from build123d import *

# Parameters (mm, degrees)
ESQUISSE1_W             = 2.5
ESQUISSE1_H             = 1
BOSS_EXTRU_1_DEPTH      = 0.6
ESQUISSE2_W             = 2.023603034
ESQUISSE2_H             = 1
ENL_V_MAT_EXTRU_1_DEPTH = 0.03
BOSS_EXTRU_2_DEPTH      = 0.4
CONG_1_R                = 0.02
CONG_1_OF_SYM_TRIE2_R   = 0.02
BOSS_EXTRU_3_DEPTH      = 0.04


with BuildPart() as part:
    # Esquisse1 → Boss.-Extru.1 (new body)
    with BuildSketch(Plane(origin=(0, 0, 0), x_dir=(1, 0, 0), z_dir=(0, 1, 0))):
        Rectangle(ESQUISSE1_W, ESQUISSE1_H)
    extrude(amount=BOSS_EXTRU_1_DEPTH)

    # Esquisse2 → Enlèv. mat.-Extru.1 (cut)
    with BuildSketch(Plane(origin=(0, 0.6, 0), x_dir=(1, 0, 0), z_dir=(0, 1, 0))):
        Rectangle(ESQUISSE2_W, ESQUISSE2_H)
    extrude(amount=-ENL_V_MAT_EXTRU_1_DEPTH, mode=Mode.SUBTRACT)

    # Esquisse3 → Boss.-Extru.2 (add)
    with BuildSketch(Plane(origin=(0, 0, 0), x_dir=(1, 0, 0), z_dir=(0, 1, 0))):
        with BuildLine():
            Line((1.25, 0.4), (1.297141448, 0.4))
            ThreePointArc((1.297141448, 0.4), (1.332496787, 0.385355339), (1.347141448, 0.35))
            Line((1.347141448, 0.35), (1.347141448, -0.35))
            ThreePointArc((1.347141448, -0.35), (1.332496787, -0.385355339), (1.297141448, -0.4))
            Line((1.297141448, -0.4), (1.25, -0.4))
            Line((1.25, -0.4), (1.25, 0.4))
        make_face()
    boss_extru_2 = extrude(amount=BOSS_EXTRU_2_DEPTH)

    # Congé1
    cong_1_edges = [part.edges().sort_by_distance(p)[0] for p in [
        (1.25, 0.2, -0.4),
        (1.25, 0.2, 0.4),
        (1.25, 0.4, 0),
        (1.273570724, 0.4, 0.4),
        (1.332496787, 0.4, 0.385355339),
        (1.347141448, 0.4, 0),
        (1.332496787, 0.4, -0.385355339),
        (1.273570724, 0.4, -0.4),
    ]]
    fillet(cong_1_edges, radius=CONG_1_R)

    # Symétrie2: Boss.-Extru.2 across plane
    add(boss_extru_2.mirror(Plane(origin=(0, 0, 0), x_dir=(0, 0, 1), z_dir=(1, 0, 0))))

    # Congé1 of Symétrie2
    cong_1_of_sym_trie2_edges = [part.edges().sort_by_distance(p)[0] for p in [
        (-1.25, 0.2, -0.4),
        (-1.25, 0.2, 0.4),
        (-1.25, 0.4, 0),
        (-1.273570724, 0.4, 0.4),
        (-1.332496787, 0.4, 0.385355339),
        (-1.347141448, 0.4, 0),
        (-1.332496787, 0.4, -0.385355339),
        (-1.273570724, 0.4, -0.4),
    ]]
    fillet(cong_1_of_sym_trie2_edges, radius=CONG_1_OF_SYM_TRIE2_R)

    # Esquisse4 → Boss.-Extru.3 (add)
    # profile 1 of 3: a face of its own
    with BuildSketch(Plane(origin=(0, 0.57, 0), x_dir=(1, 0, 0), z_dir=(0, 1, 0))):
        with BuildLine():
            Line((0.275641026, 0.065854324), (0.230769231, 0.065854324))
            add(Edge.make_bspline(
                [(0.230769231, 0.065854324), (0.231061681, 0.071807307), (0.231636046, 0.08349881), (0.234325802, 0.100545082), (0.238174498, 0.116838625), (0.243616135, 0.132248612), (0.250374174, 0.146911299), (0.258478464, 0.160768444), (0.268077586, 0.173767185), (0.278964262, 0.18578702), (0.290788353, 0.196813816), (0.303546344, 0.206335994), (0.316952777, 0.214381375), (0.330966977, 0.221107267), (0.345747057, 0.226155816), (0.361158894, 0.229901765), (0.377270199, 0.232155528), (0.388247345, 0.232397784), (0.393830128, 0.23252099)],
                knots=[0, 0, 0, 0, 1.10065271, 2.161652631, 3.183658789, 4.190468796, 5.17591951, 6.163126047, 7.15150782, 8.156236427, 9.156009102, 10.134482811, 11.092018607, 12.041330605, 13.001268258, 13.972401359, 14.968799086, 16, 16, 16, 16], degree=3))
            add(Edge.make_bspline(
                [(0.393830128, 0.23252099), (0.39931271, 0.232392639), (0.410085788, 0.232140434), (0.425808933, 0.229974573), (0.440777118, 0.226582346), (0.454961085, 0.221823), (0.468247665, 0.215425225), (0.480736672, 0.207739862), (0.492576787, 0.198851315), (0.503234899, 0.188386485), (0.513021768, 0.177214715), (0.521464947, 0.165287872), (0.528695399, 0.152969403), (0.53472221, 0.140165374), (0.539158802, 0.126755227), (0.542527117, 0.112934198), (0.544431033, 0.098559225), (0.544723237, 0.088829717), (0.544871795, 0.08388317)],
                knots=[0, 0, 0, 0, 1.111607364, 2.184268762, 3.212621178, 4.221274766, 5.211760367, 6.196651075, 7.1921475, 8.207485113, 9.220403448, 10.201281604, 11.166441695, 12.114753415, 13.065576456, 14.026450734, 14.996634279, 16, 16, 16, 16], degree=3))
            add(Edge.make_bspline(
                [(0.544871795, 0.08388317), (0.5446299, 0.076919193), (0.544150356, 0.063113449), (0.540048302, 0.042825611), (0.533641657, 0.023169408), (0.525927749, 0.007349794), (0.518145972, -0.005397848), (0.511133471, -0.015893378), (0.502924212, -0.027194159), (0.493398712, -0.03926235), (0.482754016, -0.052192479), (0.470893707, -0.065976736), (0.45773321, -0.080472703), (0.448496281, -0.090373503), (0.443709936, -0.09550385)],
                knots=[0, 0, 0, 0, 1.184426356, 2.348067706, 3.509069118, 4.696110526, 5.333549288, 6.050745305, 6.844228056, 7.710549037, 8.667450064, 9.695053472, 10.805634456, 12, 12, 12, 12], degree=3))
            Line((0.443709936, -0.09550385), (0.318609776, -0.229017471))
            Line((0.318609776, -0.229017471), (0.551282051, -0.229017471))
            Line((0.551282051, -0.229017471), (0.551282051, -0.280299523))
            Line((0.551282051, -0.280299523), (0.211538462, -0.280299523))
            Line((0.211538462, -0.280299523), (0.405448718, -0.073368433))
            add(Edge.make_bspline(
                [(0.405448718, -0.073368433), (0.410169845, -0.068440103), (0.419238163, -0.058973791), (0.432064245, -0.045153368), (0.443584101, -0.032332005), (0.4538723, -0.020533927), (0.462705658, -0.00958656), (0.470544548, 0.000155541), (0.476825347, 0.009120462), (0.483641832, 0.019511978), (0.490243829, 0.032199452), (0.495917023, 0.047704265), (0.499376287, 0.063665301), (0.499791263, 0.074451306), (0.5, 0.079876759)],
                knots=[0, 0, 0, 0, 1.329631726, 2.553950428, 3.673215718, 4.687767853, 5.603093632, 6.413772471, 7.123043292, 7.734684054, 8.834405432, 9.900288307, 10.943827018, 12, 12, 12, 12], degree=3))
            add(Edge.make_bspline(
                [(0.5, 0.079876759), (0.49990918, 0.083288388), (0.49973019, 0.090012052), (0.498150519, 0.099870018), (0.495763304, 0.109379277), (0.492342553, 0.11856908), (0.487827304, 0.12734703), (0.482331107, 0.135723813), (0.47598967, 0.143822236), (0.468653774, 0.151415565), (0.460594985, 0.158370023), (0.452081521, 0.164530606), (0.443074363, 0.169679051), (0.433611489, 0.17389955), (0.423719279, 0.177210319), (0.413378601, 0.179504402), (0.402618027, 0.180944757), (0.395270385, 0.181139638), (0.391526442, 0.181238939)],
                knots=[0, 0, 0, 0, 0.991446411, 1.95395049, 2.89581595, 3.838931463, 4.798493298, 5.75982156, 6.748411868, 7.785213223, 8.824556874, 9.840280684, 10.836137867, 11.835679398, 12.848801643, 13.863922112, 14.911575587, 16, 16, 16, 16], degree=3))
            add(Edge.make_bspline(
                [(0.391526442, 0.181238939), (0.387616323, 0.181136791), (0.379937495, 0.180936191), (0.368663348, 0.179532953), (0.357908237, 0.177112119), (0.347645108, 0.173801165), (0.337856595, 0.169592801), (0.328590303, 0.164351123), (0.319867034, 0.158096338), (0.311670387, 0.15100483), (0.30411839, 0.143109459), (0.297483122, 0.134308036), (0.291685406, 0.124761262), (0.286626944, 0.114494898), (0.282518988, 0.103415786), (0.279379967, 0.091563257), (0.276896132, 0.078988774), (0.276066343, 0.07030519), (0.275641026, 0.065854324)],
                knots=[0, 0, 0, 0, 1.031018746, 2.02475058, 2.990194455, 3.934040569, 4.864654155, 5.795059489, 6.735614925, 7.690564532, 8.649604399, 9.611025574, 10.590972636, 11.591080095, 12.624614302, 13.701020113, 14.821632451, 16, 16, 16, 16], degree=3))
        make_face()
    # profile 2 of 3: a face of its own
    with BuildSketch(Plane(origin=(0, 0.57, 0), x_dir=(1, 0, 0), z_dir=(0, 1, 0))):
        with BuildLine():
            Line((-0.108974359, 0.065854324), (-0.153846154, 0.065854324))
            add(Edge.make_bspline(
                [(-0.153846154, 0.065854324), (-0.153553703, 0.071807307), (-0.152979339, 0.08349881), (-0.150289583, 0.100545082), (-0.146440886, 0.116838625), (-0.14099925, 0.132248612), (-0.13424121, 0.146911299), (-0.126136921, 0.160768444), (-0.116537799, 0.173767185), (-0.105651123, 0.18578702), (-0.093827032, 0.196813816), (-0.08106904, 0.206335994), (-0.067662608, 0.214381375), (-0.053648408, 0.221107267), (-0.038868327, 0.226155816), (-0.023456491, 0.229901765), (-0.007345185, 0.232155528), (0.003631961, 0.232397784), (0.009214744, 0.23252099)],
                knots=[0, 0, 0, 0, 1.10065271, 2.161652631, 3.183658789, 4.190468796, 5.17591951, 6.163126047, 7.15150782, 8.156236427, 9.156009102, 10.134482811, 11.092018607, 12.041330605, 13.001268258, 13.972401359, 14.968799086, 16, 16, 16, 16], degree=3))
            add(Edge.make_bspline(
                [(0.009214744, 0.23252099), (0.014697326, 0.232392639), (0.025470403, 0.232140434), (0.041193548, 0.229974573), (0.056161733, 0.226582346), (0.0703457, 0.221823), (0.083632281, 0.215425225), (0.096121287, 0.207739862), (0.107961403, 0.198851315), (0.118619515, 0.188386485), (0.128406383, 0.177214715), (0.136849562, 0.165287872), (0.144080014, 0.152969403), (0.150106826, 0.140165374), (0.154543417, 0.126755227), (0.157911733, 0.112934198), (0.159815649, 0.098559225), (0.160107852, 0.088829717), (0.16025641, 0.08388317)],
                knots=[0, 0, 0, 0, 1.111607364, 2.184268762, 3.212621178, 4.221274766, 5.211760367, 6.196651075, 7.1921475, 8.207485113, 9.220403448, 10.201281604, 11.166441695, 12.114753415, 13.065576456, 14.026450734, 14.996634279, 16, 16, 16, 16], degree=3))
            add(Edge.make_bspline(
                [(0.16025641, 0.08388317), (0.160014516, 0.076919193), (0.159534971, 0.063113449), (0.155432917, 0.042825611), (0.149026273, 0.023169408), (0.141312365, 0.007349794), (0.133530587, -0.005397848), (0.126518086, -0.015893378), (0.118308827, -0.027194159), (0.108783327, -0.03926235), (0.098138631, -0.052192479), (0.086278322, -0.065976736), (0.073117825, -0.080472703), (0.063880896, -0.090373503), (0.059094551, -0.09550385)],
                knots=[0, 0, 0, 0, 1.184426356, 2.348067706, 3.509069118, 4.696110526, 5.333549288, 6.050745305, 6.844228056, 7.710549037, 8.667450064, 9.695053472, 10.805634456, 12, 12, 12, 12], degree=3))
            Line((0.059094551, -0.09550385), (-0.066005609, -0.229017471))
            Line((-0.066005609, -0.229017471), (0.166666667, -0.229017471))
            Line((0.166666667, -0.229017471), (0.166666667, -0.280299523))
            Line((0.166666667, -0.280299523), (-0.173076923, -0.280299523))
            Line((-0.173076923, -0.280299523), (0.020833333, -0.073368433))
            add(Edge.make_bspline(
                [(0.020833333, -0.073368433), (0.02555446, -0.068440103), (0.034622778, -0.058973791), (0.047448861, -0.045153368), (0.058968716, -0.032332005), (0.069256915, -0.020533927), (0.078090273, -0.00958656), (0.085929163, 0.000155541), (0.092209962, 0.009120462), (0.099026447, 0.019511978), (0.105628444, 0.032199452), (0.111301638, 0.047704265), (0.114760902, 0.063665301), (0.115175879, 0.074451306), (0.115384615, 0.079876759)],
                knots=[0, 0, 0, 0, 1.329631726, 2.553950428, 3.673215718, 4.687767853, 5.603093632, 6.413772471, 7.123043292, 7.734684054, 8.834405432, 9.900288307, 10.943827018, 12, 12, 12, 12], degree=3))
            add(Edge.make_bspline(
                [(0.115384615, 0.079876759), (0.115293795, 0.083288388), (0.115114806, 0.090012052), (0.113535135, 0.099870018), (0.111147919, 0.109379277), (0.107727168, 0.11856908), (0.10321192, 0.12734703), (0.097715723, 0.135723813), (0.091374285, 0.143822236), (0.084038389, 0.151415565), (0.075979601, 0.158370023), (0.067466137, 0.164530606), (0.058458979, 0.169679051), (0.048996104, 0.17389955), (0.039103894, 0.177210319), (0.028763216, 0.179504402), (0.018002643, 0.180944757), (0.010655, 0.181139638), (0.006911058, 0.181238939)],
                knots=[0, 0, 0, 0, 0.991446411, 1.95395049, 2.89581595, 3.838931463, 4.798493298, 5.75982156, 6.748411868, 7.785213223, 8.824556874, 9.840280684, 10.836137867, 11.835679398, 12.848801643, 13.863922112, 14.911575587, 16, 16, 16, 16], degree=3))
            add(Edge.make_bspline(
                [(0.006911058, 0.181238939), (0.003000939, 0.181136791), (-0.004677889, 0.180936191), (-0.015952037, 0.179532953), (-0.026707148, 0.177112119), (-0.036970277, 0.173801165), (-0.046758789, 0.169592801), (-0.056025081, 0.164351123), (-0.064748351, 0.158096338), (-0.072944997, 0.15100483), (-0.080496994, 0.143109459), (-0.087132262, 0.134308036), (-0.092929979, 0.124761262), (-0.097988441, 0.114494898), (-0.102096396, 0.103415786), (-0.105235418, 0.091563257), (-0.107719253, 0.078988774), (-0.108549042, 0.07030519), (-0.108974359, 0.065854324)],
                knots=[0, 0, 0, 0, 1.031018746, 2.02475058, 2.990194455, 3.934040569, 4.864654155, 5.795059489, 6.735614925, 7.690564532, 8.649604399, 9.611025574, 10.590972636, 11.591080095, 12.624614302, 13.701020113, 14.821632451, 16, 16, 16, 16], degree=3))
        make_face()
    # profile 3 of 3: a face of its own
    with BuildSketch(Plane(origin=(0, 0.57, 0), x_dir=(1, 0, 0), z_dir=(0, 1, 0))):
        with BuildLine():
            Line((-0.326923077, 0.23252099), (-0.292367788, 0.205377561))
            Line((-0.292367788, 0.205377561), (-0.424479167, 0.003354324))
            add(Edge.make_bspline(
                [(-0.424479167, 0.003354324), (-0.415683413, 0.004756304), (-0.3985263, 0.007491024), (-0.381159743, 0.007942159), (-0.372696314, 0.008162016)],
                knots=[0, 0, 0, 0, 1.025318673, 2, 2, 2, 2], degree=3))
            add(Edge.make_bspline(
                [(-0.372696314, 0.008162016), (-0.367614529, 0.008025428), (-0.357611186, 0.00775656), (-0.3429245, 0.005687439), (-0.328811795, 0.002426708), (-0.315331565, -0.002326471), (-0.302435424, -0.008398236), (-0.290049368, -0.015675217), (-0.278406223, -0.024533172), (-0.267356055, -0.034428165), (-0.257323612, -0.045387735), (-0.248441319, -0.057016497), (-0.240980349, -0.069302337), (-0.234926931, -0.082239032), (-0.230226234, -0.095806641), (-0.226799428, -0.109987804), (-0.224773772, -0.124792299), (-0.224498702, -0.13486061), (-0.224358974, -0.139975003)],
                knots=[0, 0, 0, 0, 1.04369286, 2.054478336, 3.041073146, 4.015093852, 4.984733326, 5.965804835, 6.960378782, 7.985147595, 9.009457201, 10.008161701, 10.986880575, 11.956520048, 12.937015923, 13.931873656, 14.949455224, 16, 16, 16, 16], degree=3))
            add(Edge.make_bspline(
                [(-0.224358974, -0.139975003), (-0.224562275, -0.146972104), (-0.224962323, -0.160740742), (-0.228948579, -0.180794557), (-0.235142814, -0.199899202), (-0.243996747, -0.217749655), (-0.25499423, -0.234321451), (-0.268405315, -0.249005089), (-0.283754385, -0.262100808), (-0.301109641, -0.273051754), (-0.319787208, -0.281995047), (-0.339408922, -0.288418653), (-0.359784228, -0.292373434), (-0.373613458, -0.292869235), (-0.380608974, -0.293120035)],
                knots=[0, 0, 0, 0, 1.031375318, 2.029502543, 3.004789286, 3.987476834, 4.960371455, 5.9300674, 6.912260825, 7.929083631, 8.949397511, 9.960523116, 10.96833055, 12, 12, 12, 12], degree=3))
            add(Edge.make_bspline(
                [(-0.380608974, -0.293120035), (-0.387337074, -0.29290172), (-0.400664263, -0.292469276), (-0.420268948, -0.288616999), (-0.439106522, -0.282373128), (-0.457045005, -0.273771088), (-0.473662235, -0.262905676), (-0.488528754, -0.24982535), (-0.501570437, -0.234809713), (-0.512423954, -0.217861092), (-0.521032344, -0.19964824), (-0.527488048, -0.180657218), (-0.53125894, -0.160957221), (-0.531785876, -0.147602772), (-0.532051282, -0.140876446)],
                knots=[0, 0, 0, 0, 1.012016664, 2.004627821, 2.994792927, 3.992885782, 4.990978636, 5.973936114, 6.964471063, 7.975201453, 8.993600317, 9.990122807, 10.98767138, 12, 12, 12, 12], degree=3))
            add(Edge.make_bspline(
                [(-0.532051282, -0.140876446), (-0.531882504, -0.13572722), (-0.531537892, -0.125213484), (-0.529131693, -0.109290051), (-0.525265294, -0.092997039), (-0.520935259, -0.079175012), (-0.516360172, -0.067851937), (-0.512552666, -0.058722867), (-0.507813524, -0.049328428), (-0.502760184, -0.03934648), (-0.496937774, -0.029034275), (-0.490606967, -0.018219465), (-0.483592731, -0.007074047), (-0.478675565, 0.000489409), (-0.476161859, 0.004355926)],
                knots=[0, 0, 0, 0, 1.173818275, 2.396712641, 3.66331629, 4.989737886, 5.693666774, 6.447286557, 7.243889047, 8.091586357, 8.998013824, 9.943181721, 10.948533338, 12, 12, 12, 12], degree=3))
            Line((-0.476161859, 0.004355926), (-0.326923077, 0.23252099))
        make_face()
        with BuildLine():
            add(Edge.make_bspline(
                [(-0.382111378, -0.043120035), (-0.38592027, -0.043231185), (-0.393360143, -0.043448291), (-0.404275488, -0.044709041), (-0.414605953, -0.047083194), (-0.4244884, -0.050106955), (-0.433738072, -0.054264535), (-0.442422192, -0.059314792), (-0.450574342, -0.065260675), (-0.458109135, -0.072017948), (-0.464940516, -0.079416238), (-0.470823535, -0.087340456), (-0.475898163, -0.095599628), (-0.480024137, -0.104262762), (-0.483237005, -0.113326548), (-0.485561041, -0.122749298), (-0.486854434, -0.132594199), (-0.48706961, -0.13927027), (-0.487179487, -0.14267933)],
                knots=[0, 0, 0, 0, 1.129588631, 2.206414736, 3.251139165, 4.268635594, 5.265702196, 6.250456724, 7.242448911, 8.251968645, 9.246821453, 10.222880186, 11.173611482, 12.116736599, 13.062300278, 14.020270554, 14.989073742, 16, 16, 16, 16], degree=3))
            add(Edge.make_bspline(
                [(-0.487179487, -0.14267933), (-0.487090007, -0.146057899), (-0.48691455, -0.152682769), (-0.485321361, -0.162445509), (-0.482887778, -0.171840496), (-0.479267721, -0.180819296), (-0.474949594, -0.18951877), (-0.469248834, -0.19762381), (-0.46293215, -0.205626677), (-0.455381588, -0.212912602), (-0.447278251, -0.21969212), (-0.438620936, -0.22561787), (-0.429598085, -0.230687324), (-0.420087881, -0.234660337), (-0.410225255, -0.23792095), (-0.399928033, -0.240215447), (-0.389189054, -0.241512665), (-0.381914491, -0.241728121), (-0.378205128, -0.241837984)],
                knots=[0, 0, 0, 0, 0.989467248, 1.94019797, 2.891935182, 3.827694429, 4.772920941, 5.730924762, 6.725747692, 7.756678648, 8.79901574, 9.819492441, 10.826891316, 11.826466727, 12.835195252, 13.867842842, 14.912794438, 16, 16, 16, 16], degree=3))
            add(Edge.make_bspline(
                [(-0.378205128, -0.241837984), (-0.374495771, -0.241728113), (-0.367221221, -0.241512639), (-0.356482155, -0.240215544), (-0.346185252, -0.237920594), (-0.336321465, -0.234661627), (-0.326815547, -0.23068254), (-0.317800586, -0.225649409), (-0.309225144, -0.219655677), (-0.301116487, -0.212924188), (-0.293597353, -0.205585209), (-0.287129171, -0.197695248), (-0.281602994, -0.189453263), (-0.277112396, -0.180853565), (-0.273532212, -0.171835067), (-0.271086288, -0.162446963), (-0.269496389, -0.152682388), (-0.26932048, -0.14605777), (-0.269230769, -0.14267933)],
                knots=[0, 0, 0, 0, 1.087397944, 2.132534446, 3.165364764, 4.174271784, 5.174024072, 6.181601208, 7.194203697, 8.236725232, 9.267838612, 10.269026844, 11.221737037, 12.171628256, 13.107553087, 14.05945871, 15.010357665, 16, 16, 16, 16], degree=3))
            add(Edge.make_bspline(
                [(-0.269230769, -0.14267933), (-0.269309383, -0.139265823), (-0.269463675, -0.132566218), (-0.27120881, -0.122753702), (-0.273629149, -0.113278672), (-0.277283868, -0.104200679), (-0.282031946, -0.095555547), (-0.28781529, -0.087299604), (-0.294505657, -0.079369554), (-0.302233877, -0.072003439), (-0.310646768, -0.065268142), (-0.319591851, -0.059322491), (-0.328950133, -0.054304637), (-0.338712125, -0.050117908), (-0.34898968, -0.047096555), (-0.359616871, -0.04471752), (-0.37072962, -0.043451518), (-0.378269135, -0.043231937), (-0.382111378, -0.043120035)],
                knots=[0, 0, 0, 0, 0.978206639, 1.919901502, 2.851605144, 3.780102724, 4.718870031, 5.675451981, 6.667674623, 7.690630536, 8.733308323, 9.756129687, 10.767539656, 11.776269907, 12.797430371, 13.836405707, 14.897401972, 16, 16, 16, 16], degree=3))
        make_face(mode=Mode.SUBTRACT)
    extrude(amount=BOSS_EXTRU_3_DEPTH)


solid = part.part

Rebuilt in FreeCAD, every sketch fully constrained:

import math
import FreeCAD as App
import Part
import Sketcher
Q = App.Units.Quantity


def edges_at(feature, points):
    """Names of the edges that pass closest to the given points."""
    edges = feature.Shape.Edges
    near = lambda p: min(range(len(edges)), key=lambda i: edges[i].distToShape(Part.Vertex(*p))[0])
    return sorted({f"Edge{near(p) + 1}" for p in points})

doc = App.newDocument("Part")
body = doc.addObject("PartDesign::Body", "Body")

# Sketch on XZ plane
sketch1 = doc.addObject("Sketcher::SketchObject", "Sketch")
body.addObject(sketch1)
sketch1.AttachmentSupport = (doc.XZ_Plane, [""])
sketch1.MapMode = "FlatFace"
sketch1.addGeometry([
    Part.LineSegment(App.Vector(-1.2, -0.5, 0), App.Vector(-1.2, 0.5, 0)),
    Part.LineSegment(App.Vector(-1.2, 0.5, 0), App.Vector(1.2, 0.5, 0)),
    Part.LineSegment(App.Vector(1.2, 0.5, 0), App.Vector(1.2, -0.5, 0)),
    Part.LineSegment(App.Vector(1.2, -0.5, 0), App.Vector(-1.2, -0.5, 0)),
], False)
sketch1.addConstraint([
    Sketcher.Constraint("Coincident", 0, 2, 1, 1),
    Sketcher.Constraint("Coincident", 1, 2, 2, 1),
    Sketcher.Constraint("Coincident", 2, 2, 3, 1),
    Sketcher.Constraint("Coincident", 3, 2, 0, 1),
    Sketcher.Constraint("Vertical", 0),
    Sketcher.Constraint("Horizontal", 1),
    Sketcher.Constraint("Vertical", 2),
    Sketcher.Constraint("Horizontal", 3),
    Sketcher.Constraint("Symmetric", 0, 2, 2, 2, -1, 1),
    Sketcher.Constraint("DistanceY", 0, 1, 0, 2, Q("1 mm")),
    Sketcher.Constraint("DistanceX", 1, 1, 1, 2, Q("2.5 mm")),
])
pad1 = doc.addObject("PartDesign::Pad", "Pad")
body.addObject(pad1)
pad1.Profile = sketch1
pad1.Length = 0.6
pad1.Reversed = True

# Sketch on XZ plane
sketch2 = doc.addObject("Sketcher::SketchObject", "Sketch001")
body.addObject(sketch2)
sketch2.AttachmentSupport = (doc.XZ_Plane, [""])
sketch2.MapMode = "FlatFace"
sketch2.AttachmentOffset = App.Placement(App.Vector(0, 0, -0.6), App.Rotation())
sketch2.addGeometry([
    Part.LineSegment(App.Vector(-1, -0.5, 0), App.Vector(-1, 0.5, 0)),
    Part.LineSegment(App.Vector(-1, 0.5, 0), App.Vector(1, 0.5, 0)),
    Part.LineSegment(App.Vector(1, 0.5, 0), App.Vector(1, -0.5, 0)),
    Part.LineSegment(App.Vector(1, -0.5, 0), App.Vector(-1, -0.5, 0)),
], False)
sketch2.addConstraint([
    Sketcher.Constraint("Coincident", 0, 2, 1, 1),
    Sketcher.Constraint("Coincident", 1, 2, 2, 1),
    Sketcher.Constraint("Coincident", 2, 2, 3, 1),
    Sketcher.Constraint("Coincident", 3, 2, 0, 1),
    Sketcher.Constraint("Vertical", 0),
    Sketcher.Constraint("Horizontal", 1),
    Sketcher.Constraint("Vertical", 2),
    Sketcher.Constraint("Horizontal", 3),
    Sketcher.Constraint("Symmetric", 0, 2, 2, 2, -1, 1),
    Sketcher.Constraint("DistanceY", 0, 1, 0, 2, Q("1 mm")),
    Sketcher.Constraint("DistanceX", 0, 2, -1, 1, Q("1.011802 mm")),
])
pocket1 = doc.addObject("PartDesign::Pocket", "Pocket")
body.addObject(pocket1)
pocket1.Profile = sketch2
pocket1.Length = 0.03
pocket1.Reversed = True

# Sketch on XZ plane
sketch3 = doc.addObject("Sketcher::SketchObject", "Sketch002")
body.addObject(sketch3)
sketch3.AttachmentSupport = (doc.XZ_Plane, [""])
sketch3.MapMode = "FlatFace"
sketch3.addGeometry([
    Part.LineSegment(App.Vector(1.297, -0.4, 0), App.Vector(1.25, -0.4, 0)),  # 0
    Part.LineSegment(App.Vector(1.25, -0.4, 0), App.Vector(1.25, 0.4, 0)),  # 1
    Part.LineSegment(App.Vector(1.25, 0.4, 0), App.Vector(1.297, 0.4, 0)),  # 2
    Part.ArcOfCircle(Part.Circle(App.Vector(1.297, 0.35, 0), App.Vector(0, 0, 1), 0.05), math.radians(0), math.radians(90)),  # 3
    Part.LineSegment(App.Vector(1.347, 0.35, 0), App.Vector(1.347, -0.35, 0)),  # 4
    Part.ArcOfCircle(Part.Circle(App.Vector(1.297, -0.35, 0), App.Vector(0, 0, 1), 0.05), math.radians(-90), math.radians(0)),  # 5
], False)
sketch3.addConstraint([
    Sketcher.Constraint("Coincident", 0, 2, 1, 1),
    Sketcher.Constraint("Coincident", 1, 2, 2, 1),
    Sketcher.Constraint("Tangent", 2, 2, 3, 2),
    Sketcher.Constraint("Tangent", 3, 1, 4, 1),
    Sketcher.Constraint("Tangent", 4, 2, 5, 2),
    Sketcher.Constraint("Tangent", 5, 1, 0, 1),
    Sketcher.Constraint("Horizontal", 0),
    Sketcher.Constraint("Vertical", 1),
    Sketcher.Constraint("Horizontal", 2),
    Sketcher.Constraint("Vertical", 4),
    Sketcher.Constraint("Equal", 3, 5),
    Sketcher.Constraint("Radius", 3, Q("0.05 mm")),
    Sketcher.Constraint("DistanceY", 1, 1, 1, 2, Q("0.8 mm")),
    Sketcher.Constraint("DistanceY", 0, 2, -1, 1, Q("0.4 mm")),
    Sketcher.Constraint("DistanceX", -1, 1, 0, 2, Q("1.25 mm")),
    Sketcher.Constraint("DistanceX", 0, 2, 0, 1, Q("0.047141 mm")),
])
pad2 = doc.addObject("PartDesign::Pad", "Pad001")
body.addObject(pad2)
pad2.Profile = sketch3
pad2.Length = 0.4
pad2.Reversed = True
doc.recompute()

fillet = doc.addObject("PartDesign::Fillet", "Fillet")
body.addObject(fillet)
fillet.Base = (pad2, edges_at(pad2, [
    (1.25, 0.2, -0.4),
    (1.25, 0.2, 0.4),
    (1.25, 0.4, 0),
    (1.274, 0.4, 0.4),
    (1.332, 0.4, 0.385),
    (1.347, 0.4, 0),
    (1.332, 0.4, -0.385),
    (1.274, 0.4, -0.4),
]))
fillet.Radius = 0.02
doc.recompute()

mirrored = doc.addObject("PartDesign::Mirrored", "Mirrored")
body.addObject(mirrored)
mirrored.Originals = [pad2]
mirrored.MirrorPlane = (doc.YZ_Plane, [""])
body.Tip = mirrored
doc.recompute()

fillet2 = doc.addObject("PartDesign::Fillet", "Fillet001")
body.addObject(fillet2)
fillet2.Base = (mirrored, edges_at(mirrored, [
    (-1.25, 0.2, -0.4),
    (-1.25, 0.2, 0.4),
    (-1.25, 0.4, 0),
    (-1.274, 0.4, 0.4),
    (-1.332, 0.4, 0.385),
    (-1.347, 0.4, 0),
    (-1.332, 0.4, -0.385),
    (-1.274, 0.4, -0.4),
]))
fillet2.Radius = 0.02

# Sketch on XZ plane
sketch4 = doc.addObject("Sketcher::SketchObject", "Sketch003")
body.addObject(sketch4)
sketch4.AttachmentSupport = (doc.XZ_Plane, [""])
sketch4.MapMode = "FlatFace"
sketch4.AttachmentOffset = App.Placement(App.Vector(0, 0, -0.57), App.Rotation())
sketch4.addGeometry([
    Part.LineSegment(App.Vector(0.230769, -0.065854, 0), App.Vector(0.275641, -0.065854, 0)),  # 0
    Part.BSplineCurve([App.Vector(0.391526, -0.181239, 0), App.Vector(0.387616, -0.181137, 0), App.Vector(0.379937, -0.180936, 0), App.Vector(0.368663, -0.179533, 0), App.Vector(0.357908, -0.177112, 0), App.Vector(0.347645, -0.173801, 0), App.Vector(0.337857, -0.169593, 0), App.Vector(0.32859, -0.164351, 0), App.Vector(0.319867, -0.158096, 0), App.Vector(0.31167, -0.151005, 0), App.Vector(0.304118, -0.143109, 0), App.Vector(0.297483, -0.134308, 0), App.Vector(0.291685, -0.124761, 0), App.Vector(0.286627, -0.114495, 0), App.Vector(0.282519, -0.103416, 0), App.Vector(0.27938, -0.091563, 0), App.Vector(0.276896, -0.078989, 0), App.Vector(0.276066, -0.070305, 0), App.Vector(0.275641, -0.065854, 0)], [4, 1, 1, 1, 1, 1, 1, 1, 1, 1, 1, 1, 1, 1, 1, 1, 4], [0, 1.031018746, 2.02475058, 2.990194455, 3.934040569, 4.864654155, 5.795059489, 6.735614925, 7.690564532, 8.649604399, 9.611025574, 10.590972636, 11.591080095, 12.624614302, 13.701020113, 14.821632451, 16], False, 3, [1, 1, 1, 1, 1, 1, 1, 1, 1, 1, 1, 1, 1, 1, 1, 1, 1, 1, 1], False),  # 1
    Part.BSplineCurve([App.Vector(0.5, -0.079877, 0), App.Vector(0.499909, -0.083288, 0), App.Vector(0.49973, -0.090012, 0), App.Vector(0.498151, -0.09987, 0), App.Vector(0.495763, -0.109379, 0), App.Vector(0.492343, -0.118569, 0), App.Vector(0.487827, -0.127347, 0), App.Vector(0.482331, -0.135724, 0), App.Vector(0.47599, -0.143822, 0), App.Vector(0.468654, -0.151416, 0), App.Vector(0.460595, -0.15837, 0), App.Vector(0.452082, -0.164531, 0), App.Vector(0.443074, -0.169679, 0), App.Vector(0.433611, -0.1739, 0), App.Vector(0.423719, -0.17721, 0), App.Vector(0.413379, -0.179504, 0), App.Vector(0.402618, -0.180945, 0), App.Vector(0.39527, -0.18114, 0), App.Vector(0.391526, -0.181239, 0)], [4, 1, 1, 1, 1, 1, 1, 1, 1, 1, 1, 1, 1, 1, 1, 1, 4], [0, 0.991446411, 1.95395049, 2.89581595, 3.838931463, 4.798493298, 5.75982156, 6.748411868, 7.785213223, 8.824556874, 9.840280684, 10.836137867, 11.835679398, 12.848801643, 13.863922112, 14.911575587, 16], False, 3, [1, 1, 1, 1, 1, 1, 1, 1, 1, 1, 1, 1, 1, 1, 1, 1, 1, 1, 1], False),  # 2
    Part.BSplineCurve([App.Vector(0.405449, 0.073368, 0), App.Vector(0.41017, 0.06844, 0), App.Vector(0.419238, 0.058974, 0), App.Vector(0.432064, 0.045153, 0), App.Vector(0.443584, 0.032332, 0), App.Vector(0.453872, 0.020534, 0), App.Vector(0.462706, 0.009587, 0), App.Vector(0.470545, -0.000156, 0), App.Vector(0.476825, -0.00912, 0), App.Vector(0.483642, -0.019512, 0), App.Vector(0.490244, -0.032199, 0), App.Vector(0.495917, -0.047704, 0), App.Vector(0.499376, -0.063665, 0), App.Vector(0.499791, -0.074451, 0), App.Vector(0.5, -0.079877, 0)], [4, 1, 1, 1, 1, 1, 1, 1, 1, 1, 1, 1, 4], [0, 1.329631726, 2.553950428, 3.673215718, 4.687767853, 5.603093632, 6.413772471, 7.123043292, 7.734684054, 8.834405432, 9.900288307, 10.943827018, 12], False, 3, [1, 1, 1, 1, 1, 1, 1, 1, 1, 1, 1, 1, 1, 1, 1], False),  # 3
    Part.LineSegment(App.Vector(0.405449, 0.073368, 0), App.Vector(0.211538, 0.2803, 0)),  # 4
    Part.LineSegment(App.Vector(0.211538, 0.2803, 0), App.Vector(0.551282, 0.2803, 0)),  # 5
    Part.LineSegment(App.Vector(0.551282, 0.2803, 0), App.Vector(0.551282, 0.229017, 0)),  # 6
    Part.LineSegment(App.Vector(0.551282, 0.229017, 0), App.Vector(0.31861, 0.229017, 0)),  # 7
    Part.LineSegment(App.Vector(0.31861, 0.229017, 0), App.Vector(0.44371, 0.095504, 0)),  # 8
    Part.BSplineCurve([App.Vector(0.544872, -0.083883, 0), App.Vector(0.54463, -0.076919, 0), App.Vector(0.54415, -0.063113, 0), App.Vector(0.540048, -0.042826, 0), App.Vector(0.533642, -0.023169, 0), App.Vector(0.525928, -0.00735, 0), App.Vector(0.518146, 0.005398, 0), App.Vector(0.511133, 0.015893, 0), App.Vector(0.502924, 0.027194, 0), App.Vector(0.493399, 0.039262, 0), App.Vector(0.482754, 0.052192, 0), App.Vector(0.470894, 0.065977, 0), App.Vector(0.457733, 0.080473, 0), App.Vector(0.448496, 0.090374, 0), App.Vector(0.44371, 0.095504, 0)], [4, 1, 1, 1, 1, 1, 1, 1, 1, 1, 1, 1, 4], [0, 1.184426356, 2.348067706, 3.509069118, 4.696110526, 5.333549288, 6.050745305, 6.844228056, 7.710549037, 8.667450064, 9.695053472, 10.805634456, 12], False, 3, [1, 1, 1, 1, 1, 1, 1, 1, 1, 1, 1, 1, 1, 1, 1], False),  # 9
    Part.BSplineCurve([App.Vector(0.39383, -0.232521, 0), App.Vector(0.399313, -0.232393, 0), App.Vector(0.410086, -0.23214, 0), App.Vector(0.425809, -0.229975, 0), App.Vector(0.440777, -0.226582, 0), App.Vector(0.454961, -0.221823, 0), App.Vector(0.468248, -0.215425, 0), App.Vector(0.480737, -0.20774, 0), App.Vector(0.492577, -0.198851, 0), App.Vector(0.503235, -0.188386, 0), App.Vector(0.513022, -0.177215, 0), App.Vector(0.521465, -0.165288, 0), App.Vector(0.528695, -0.152969, 0), App.Vector(0.534722, -0.140165, 0), App.Vector(0.539159, -0.126755, 0), App.Vector(0.542527, -0.112934, 0), App.Vector(0.544431, -0.098559, 0), App.Vector(0.544723, -0.08883, 0), App.Vector(0.544872, -0.083883, 0)], [4, 1, 1, 1, 1, 1, 1, 1, 1, 1, 1, 1, 1, 1, 1, 1, 4], [0, 1.111607364, 2.184268762, 3.212621178, 4.221274766, 5.211760367, 6.196651075, 7.1921475, 8.207485113, 9.220403448, 10.201281604, 11.166441695, 12.114753415, 13.065576456, 14.026450734, 14.996634279, 16], False, 3, [1, 1, 1, 1, 1, 1, 1, 1, 1, 1, 1, 1, 1, 1, 1, 1, 1, 1, 1], False),  # 10
    Part.BSplineCurve([App.Vector(0.230769, -0.065854, 0), App.Vector(0.231062, -0.071807, 0), App.Vector(0.231636, -0.083499, 0), App.Vector(0.234326, -0.100545, 0), App.Vector(0.238174, -0.116839, 0), App.Vector(0.243616, -0.132249, 0), App.Vector(0.250374, -0.146911, 0), App.Vector(0.258478, -0.160768, 0), App.Vector(0.268078, -0.173767, 0), App.Vector(0.278964, -0.185787, 0), App.Vector(0.290788, -0.196814, 0), App.Vector(0.303546, -0.206336, 0), App.Vector(0.316953, -0.214381, 0), App.Vector(0.330967, -0.221107, 0), App.Vector(0.345747, -0.226156, 0), App.Vector(0.361159, -0.229902, 0), App.Vector(0.37727, -0.232156, 0), App.Vector(0.388247, -0.232398, 0), App.Vector(0.39383, -0.232521, 0)], [4, 1, 1, 1, 1, 1, 1, 1, 1, 1, 1, 1, 1, 1, 1, 1, 4], [0, 1.10065271, 2.161652631, 3.183658789, 4.190468796, 5.17591951, 6.163126047, 7.15150782, 8.156236427, 9.156009102, 10.134482811, 11.092018607, 12.041330605, 13.001268258, 13.972401359, 14.968799086, 16], False, 3, [1, 1, 1, 1, 1, 1, 1, 1, 1, 1, 1, 1, 1, 1, 1, 1, 1, 1, 1], False),  # 11
    Part.LineSegment(App.Vector(-0.153846, -0.065854, 0), App.Vector(-0.108974, -0.065854, 0)),  # 12
    Part.BSplineCurve([App.Vector(0.006911, -0.181239, 0), App.Vector(0.003001, -0.181137, 0), App.Vector(-0.004678, -0.180936, 0), App.Vector(-0.015952, -0.179533, 0), App.Vector(-0.026707, -0.177112, 0), App.Vector(-0.03697, -0.173801, 0), App.Vector(-0.046759, -0.169593, 0), App.Vector(-0.056025, -0.164351, 0), App.Vector(-0.064748, -0.158096, 0), App.Vector(-0.072945, -0.151005, 0), App.Vector(-0.080497, -0.143109, 0), App.Vector(-0.087132, -0.134308, 0), App.Vector(-0.09293, -0.124761, 0), App.Vector(-0.097988, -0.114495, 0), App.Vector(-0.102096, -0.103416, 0), App.Vector(-0.105235, -0.091563, 0), App.Vector(-0.107719, -0.078989, 0), App.Vector(-0.108549, -0.070305, 0), App.Vector(-0.108974, -0.065854, 0)], [4, 1, 1, 1, 1, 1, 1, 1, 1, 1, 1, 1, 1, 1, 1, 1, 4], [0, 1.031018746, 2.02475058, 2.990194455, 3.934040569, 4.864654155, 5.795059489, 6.735614925, 7.690564532, 8.649604399, 9.611025574, 10.590972636, 11.591080095, 12.624614302, 13.701020113, 14.821632451, 16], False, 3, [1, 1, 1, 1, 1, 1, 1, 1, 1, 1, 1, 1, 1, 1, 1, 1, 1, 1, 1], False),  # 13
    Part.BSplineCurve([App.Vector(0.115385, -0.079877, 0), App.Vector(0.115294, -0.083288, 0), App.Vector(0.115115, -0.090012, 0), App.Vector(0.113535, -0.09987, 0), App.Vector(0.111148, -0.109379, 0), App.Vector(0.107727, -0.118569, 0), App.Vector(0.103212, -0.127347, 0), App.Vector(0.097716, -0.135724, 0), App.Vector(0.091374, -0.143822, 0), App.Vector(0.084038, -0.151416, 0), App.Vector(0.07598, -0.15837, 0), App.Vector(0.067466, -0.164531, 0), App.Vector(0.058459, -0.169679, 0), App.Vector(0.048996, -0.1739, 0), App.Vector(0.039104, -0.17721, 0), App.Vector(0.028763, -0.179504, 0), App.Vector(0.018003, -0.180945, 0), App.Vector(0.010655, -0.18114, 0), App.Vector(0.006911, -0.181239, 0)], [4, 1, 1, 1, 1, 1, 1, 1, 1, 1, 1, 1, 1, 1, 1, 1, 4], [0, 0.991446411, 1.95395049, 2.89581595, 3.838931463, 4.798493298, 5.75982156, 6.748411868, 7.785213223, 8.824556874, 9.840280684, 10.836137867, 11.835679398, 12.848801643, 13.863922112, 14.911575587, 16], False, 3, [1, 1, 1, 1, 1, 1, 1, 1, 1, 1, 1, 1, 1, 1, 1, 1, 1, 1, 1], False),  # 14
    Part.BSplineCurve([App.Vector(0.020833, 0.073368, 0), App.Vector(0.025554, 0.06844, 0), App.Vector(0.034623, 0.058974, 0), App.Vector(0.047449, 0.045153, 0), App.Vector(0.058969, 0.032332, 0), App.Vector(0.069257, 0.020534, 0), App.Vector(0.07809, 0.009587, 0), App.Vector(0.085929, -0.000156, 0), App.Vector(0.09221, -0.00912, 0), App.Vector(0.099026, -0.019512, 0), App.Vector(0.105628, -0.032199, 0), App.Vector(0.111302, -0.047704, 0), App.Vector(0.114761, -0.063665, 0), App.Vector(0.115176, -0.074451, 0), App.Vector(0.115385, -0.079877, 0)], [4, 1, 1, 1, 1, 1, 1, 1, 1, 1, 1, 1, 4], [0, 1.329631726, 2.553950428, 3.673215718, 4.687767853, 5.603093632, 6.413772471, 7.123043292, 7.734684054, 8.834405432, 9.900288307, 10.943827018, 12], False, 3, [1, 1, 1, 1, 1, 1, 1, 1, 1, 1, 1, 1, 1, 1, 1], False),  # 15
    Part.LineSegment(App.Vector(0.020833, 0.073368, 0), App.Vector(-0.173077, 0.2803, 0)),  # 16
    Part.LineSegment(App.Vector(-0.173077, 0.2803, 0), App.Vector(0.166667, 0.2803, 0)),  # 17
    Part.LineSegment(App.Vector(0.166667, 0.2803, 0), App.Vector(0.166667, 0.229017, 0)),  # 18
    Part.LineSegment(App.Vector(0.166667, 0.229017, 0), App.Vector(-0.066006, 0.229017, 0)),  # 19
    Part.LineSegment(App.Vector(-0.066006, 0.229017, 0), App.Vector(0.059095, 0.095504, 0)),  # 20
    Part.BSplineCurve([App.Vector(0.160256, -0.083883, 0), App.Vector(0.160015, -0.076919, 0), App.Vector(0.159535, -0.063113, 0), App.Vector(0.155433, -0.042826, 0), App.Vector(0.149026, -0.023169, 0), App.Vector(0.141312, -0.00735, 0), App.Vector(0.133531, 0.005398, 0), App.Vector(0.126518, 0.015893, 0), App.Vector(0.118309, 0.027194, 0), App.Vector(0.108783, 0.039262, 0), App.Vector(0.098139, 0.052192, 0), App.Vector(0.086278, 0.065977, 0), App.Vector(0.073118, 0.080473, 0), App.Vector(0.063881, 0.090374, 0), App.Vector(0.059095, 0.095504, 0)], [4, 1, 1, 1, 1, 1, 1, 1, 1, 1, 1, 1, 4], [0, 1.184426356, 2.348067706, 3.509069118, 4.696110526, 5.333549288, 6.050745305, 6.844228056, 7.710549037, 8.667450064, 9.695053472, 10.805634456, 12], False, 3, [1, 1, 1, 1, 1, 1, 1, 1, 1, 1, 1, 1, 1, 1, 1], False),  # 21
    Part.BSplineCurve([App.Vector(0.009215, -0.232521, 0), App.Vector(0.014697, -0.232393, 0), App.Vector(0.02547, -0.23214, 0), App.Vector(0.041194, -0.229975, 0), App.Vector(0.056162, -0.226582, 0), App.Vector(0.070346, -0.221823, 0), App.Vector(0.083632, -0.215425, 0), App.Vector(0.096121, -0.20774, 0), App.Vector(0.107961, -0.198851, 0), App.Vector(0.11862, -0.188386, 0), App.Vector(0.128406, -0.177215, 0), App.Vector(0.13685, -0.165288, 0), App.Vector(0.14408, -0.152969, 0), App.Vector(0.150107, -0.140165, 0), App.Vector(0.154543, -0.126755, 0), App.Vector(0.157912, -0.112934, 0), App.Vector(0.159816, -0.098559, 0), App.Vector(0.160108, -0.08883, 0), App.Vector(0.160256, -0.083883, 0)], [4, 1, 1, 1, 1, 1, 1, 1, 1, 1, 1, 1, 1, 1, 1, 1, 4], [0, 1.111607364, 2.184268762, 3.212621178, 4.221274766, 5.211760367, 6.196651075, 7.1921475, 8.207485113, 9.220403448, 10.201281604, 11.166441695, 12.114753415, 13.065576456, 14.026450734, 14.996634279, 16], False, 3, [1, 1, 1, 1, 1, 1, 1, 1, 1, 1, 1, 1, 1, 1, 1, 1, 1, 1, 1], False),  # 22
    Part.BSplineCurve([App.Vector(-0.153846, -0.065854, 0), App.Vector(-0.153554, -0.071807, 0), App.Vector(-0.152979, -0.083499, 0), App.Vector(-0.15029, -0.100545, 0), App.Vector(-0.146441, -0.116839, 0), App.Vector(-0.140999, -0.132249, 0), App.Vector(-0.134241, -0.146911, 0), App.Vector(-0.126137, -0.160768, 0), App.Vector(-0.116538, -0.173767, 0), App.Vector(-0.105651, -0.185787, 0), App.Vector(-0.093827, -0.196814, 0), App.Vector(-0.081069, -0.206336, 0), App.Vector(-0.067663, -0.214381, 0), App.Vector(-0.053648, -0.221107, 0), App.Vector(-0.038868, -0.226156, 0), App.Vector(-0.023456, -0.229902, 0), App.Vector(-0.007345, -0.232156, 0), App.Vector(0.003632, -0.232398, 0), App.Vector(0.009215, -0.232521, 0)], [4, 1, 1, 1, 1, 1, 1, 1, 1, 1, 1, 1, 1, 1, 1, 1, 4], [0, 1.10065271, 2.161652631, 3.183658789, 4.190468796, 5.17591951, 6.163126047, 7.15150782, 8.156236427, 9.156009102, 10.134482811, 11.092018607, 12.041330605, 13.001268258, 13.972401359, 14.968799086, 16], False, 3, [1, 1, 1, 1, 1, 1, 1, 1, 1, 1, 1, 1, 1, 1, 1, 1, 1, 1, 1], False),  # 23
    Part.LineSegment(App.Vector(-0.292368, -0.205378, 0), App.Vector(-0.326923, -0.232521, 0)),  # 24
    Part.LineSegment(App.Vector(-0.326923, -0.232521, 0), App.Vector(-0.476162, -0.004356, 0)),  # 25
    Part.BSplineCurve([App.Vector(-0.532051, 0.140876, 0), App.Vector(-0.531883, 0.135727, 0), App.Vector(-0.531538, 0.125213, 0), App.Vector(-0.529132, 0.10929, 0), App.Vector(-0.525265, 0.092997, 0), App.Vector(-0.520935, 0.079175, 0), App.Vector(-0.51636, 0.067852, 0), App.Vector(-0.512553, 0.058723, 0), App.Vector(-0.507814, 0.049328, 0), App.Vector(-0.50276, 0.039346, 0), App.Vector(-0.496938, 0.029034, 0), App.Vector(-0.490607, 0.018219, 0), App.Vector(-0.483593, 0.007074, 0), App.Vector(-0.478676, -0.000489, 0), App.Vector(-0.476162, -0.004356, 0)], [4, 1, 1, 1, 1, 1, 1, 1, 1, 1, 1, 1, 4], [0, 1.173818275, 2.396712641, 3.66331629, 4.989737886, 5.693666774, 6.447286557, 7.243889047, 8.091586357, 8.998013824, 9.943181721, 10.948533338, 12], False, 3, [1, 1, 1, 1, 1, 1, 1, 1, 1, 1, 1, 1, 1, 1, 1], False),  # 26
    Part.BSplineCurve([App.Vector(-0.380609, 0.29312, 0), App.Vector(-0.387337, 0.292902, 0), App.Vector(-0.400664, 0.292469, 0), App.Vector(-0.420269, 0.288617, 0), App.Vector(-0.439107, 0.282373, 0), App.Vector(-0.457045, 0.273771, 0), App.Vector(-0.473662, 0.262906, 0), App.Vector(-0.488529, 0.249825, 0), App.Vector(-0.50157, 0.23481, 0), App.Vector(-0.512424, 0.217861, 0), App.Vector(-0.521032, 0.199648, 0), App.Vector(-0.527488, 0.180657, 0), App.Vector(-0.531259, 0.160957, 0), App.Vector(-0.531786, 0.147603, 0), App.Vector(-0.532051, 0.140876, 0)], [4, 1, 1, 1, 1, 1, 1, 1, 1, 1, 1, 1, 4], [0, 1.012016664, 2.004627821, 2.994792927, 3.992885782, 4.990978636, 5.973936114, 6.964471063, 7.975201453, 8.993600317, 9.990122807, 10.98767138, 12], False, 3, [1, 1, 1, 1, 1, 1, 1, 1, 1, 1, 1, 1, 1, 1, 1], False),  # 27
    Part.BSplineCurve([App.Vector(-0.224359, 0.139975, 0), App.Vector(-0.224562, 0.146972, 0), App.Vector(-0.224962, 0.160741, 0), App.Vector(-0.228949, 0.180795, 0), App.Vector(-0.235143, 0.199899, 0), App.Vector(-0.243997, 0.21775, 0), App.Vector(-0.254994, 0.234321, 0), App.Vector(-0.268405, 0.249005, 0), App.Vector(-0.283754, 0.262101, 0), App.Vector(-0.30111, 0.273052, 0), App.Vector(-0.319787, 0.281995, 0), App.Vector(-0.339409, 0.288419, 0), App.Vector(-0.359784, 0.292373, 0), App.Vector(-0.373613, 0.292869, 0), App.Vector(-0.380609, 0.29312, 0)], [4, 1, 1, 1, 1, 1, 1, 1, 1, 1, 1, 1, 4], [0, 1.031375318, 2.029502543, 3.004789286, 3.987476834, 4.960371455, 5.9300674, 6.912260825, 7.929083631, 8.949397511, 9.960523116, 10.96833055, 12], False, 3, [1, 1, 1, 1, 1, 1, 1, 1, 1, 1, 1, 1, 1, 1, 1], False),  # 28
    Part.BSplineCurve([App.Vector(-0.372696, -0.008162, 0), App.Vector(-0.367615, -0.008025, 0), App.Vector(-0.357611, -0.007757, 0), App.Vector(-0.342925, -0.005687, 0), App.Vector(-0.328812, -0.002427, 0), App.Vector(-0.315332, 0.002326, 0), App.Vector(-0.302435, 0.008398, 0), App.Vector(-0.290049, 0.015675, 0), App.Vector(-0.278406, 0.024533, 0), App.Vector(-0.267356, 0.034428, 0), App.Vector(-0.257324, 0.045388, 0), App.Vector(-0.248441, 0.057016, 0), App.Vector(-0.24098, 0.069302, 0), App.Vector(-0.234927, 0.082239, 0), App.Vector(-0.230226, 0.095807, 0), App.Vector(-0.226799, 0.109988, 0), App.Vector(-0.224774, 0.124792, 0), App.Vector(-0.224499, 0.134861, 0), App.Vector(-0.224359, 0.139975, 0)], [4, 1, 1, 1, 1, 1, 1, 1, 1, 1, 1, 1, 1, 1, 1, 1, 4], [0, 1.04369286, 2.054478336, 3.041073146, 4.015093852, 4.984733326, 5.965804835, 6.960378782, 7.985147595, 9.009457201, 10.008161701, 10.986880575, 11.956520048, 12.937015923, 13.931873656, 14.949455224, 16], False, 3, [1, 1, 1, 1, 1, 1, 1, 1, 1, 1, 1, 1, 1, 1, 1, 1, 1, 1, 1], False),  # 29
    Part.BSplineCurve([App.Vector(-0.424479, -0.003354, 0), App.Vector(-0.415683, -0.004756, 0), App.Vector(-0.398526, -0.007491, 0), App.Vector(-0.38116, -0.007942, 0), App.Vector(-0.372696, -0.008162, 0)], [4, 1, 4], [0, 1.025318673, 2], False, 3, [1, 1, 1, 1, 1], False),  # 30
    Part.LineSegment(App.Vector(-0.424479, -0.003354, 0), App.Vector(-0.292368, -0.205378, 0)),  # 31
    Part.BSplineCurve([App.Vector(-0.269231, 0.142679, 0), App.Vector(-0.269309, 0.139266, 0), App.Vector(-0.269464, 0.132566, 0), App.Vector(-0.271209, 0.122754, 0), App.Vector(-0.273629, 0.113279, 0), App.Vector(-0.277284, 0.104201, 0), App.Vector(-0.282032, 0.095556, 0), App.Vector(-0.287815, 0.0873, 0), App.Vector(-0.294506, 0.07937, 0), App.Vector(-0.302234, 0.072003, 0), App.Vector(-0.310647, 0.065268, 0), App.Vector(-0.319592, 0.059322, 0), App.Vector(-0.32895, 0.054305, 0), App.Vector(-0.338712, 0.050118, 0), App.Vector(-0.34899, 0.047097, 0), App.Vector(-0.359617, 0.044718, 0), App.Vector(-0.37073, 0.043452, 0), App.Vector(-0.378269, 0.043232, 0), App.Vector(-0.382111, 0.04312, 0)], [4, 1, 1, 1, 1, 1, 1, 1, 1, 1, 1, 1, 1, 1, 1, 1, 4], [0, 0.978206639, 1.919901502, 2.851605144, 3.780102724, 4.718870031, 5.675451981, 6.667674623, 7.690630536, 8.733308323, 9.756129687, 10.767539656, 11.776269907, 12.797430371, 13.836405707, 14.897401972, 16], False, 3, [1, 1, 1, 1, 1, 1, 1, 1, 1, 1, 1, 1, 1, 1, 1, 1, 1, 1, 1], False),  # 32
    Part.BSplineCurve([App.Vector(-0.378205, 0.241838, 0), App.Vector(-0.374496, 0.241728, 0), App.Vector(-0.367221, 0.241513, 0), App.Vector(-0.356482, 0.240216, 0), App.Vector(-0.346185, 0.237921, 0), App.Vector(-0.336321, 0.234662, 0), App.Vector(-0.326816, 0.230683, 0), App.Vector(-0.317801, 0.225649, 0), App.Vector(-0.309225, 0.219656, 0), App.Vector(-0.301116, 0.212924, 0), App.Vector(-0.293597, 0.205585, 0), App.Vector(-0.287129, 0.197695, 0), App.Vector(-0.281603, 0.189453, 0), App.Vector(-0.277112, 0.180854, 0), App.Vector(-0.273532, 0.171835, 0), App.Vector(-0.271086, 0.162447, 0), App.Vector(-0.269496, 0.152682, 0), App.Vector(-0.26932, 0.146058, 0), App.Vector(-0.269231, 0.142679, 0)], [4, 1, 1, 1, 1, 1, 1, 1, 1, 1, 1, 1, 1, 1, 1, 1, 4], [0, 1.087397944, 2.132534446, 3.165364764, 4.174271784, 5.174024072, 6.181601208, 7.194203697, 8.236725232, 9.267838612, 10.269026844, 11.221737037, 12.171628256, 13.107553087, 14.05945871, 15.010357665, 16], False, 3, [1, 1, 1, 1, 1, 1, 1, 1, 1, 1, 1, 1, 1, 1, 1, 1, 1, 1, 1], False),  # 33
    Part.BSplineCurve([App.Vector(-0.487179, 0.142679, 0), App.Vector(-0.48709, 0.146058, 0), App.Vector(-0.486915, 0.152683, 0), App.Vector(-0.485321, 0.162446, 0), App.Vector(-0.482888, 0.17184, 0), App.Vector(-0.479268, 0.180819, 0), App.Vector(-0.47495, 0.189519, 0), App.Vector(-0.469249, 0.197624, 0), App.Vector(-0.462932, 0.205627, 0), App.Vector(-0.455382, 0.212913, 0), App.Vector(-0.447278, 0.219692, 0), App.Vector(-0.438621, 0.225618, 0), App.Vector(-0.429598, 0.230687, 0), App.Vector(-0.420088, 0.23466, 0), App.Vector(-0.410225, 0.237921, 0), App.Vector(-0.399928, 0.240215, 0), App.Vector(-0.389189, 0.241513, 0), App.Vector(-0.381914, 0.241728, 0), App.Vector(-0.378205, 0.241838, 0)], [4, 1, 1, 1, 1, 1, 1, 1, 1, 1, 1, 1, 1, 1, 1, 1, 4], [0, 0.989467248, 1.94019797, 2.891935182, 3.827694429, 4.772920941, 5.730924762, 6.725747692, 7.756678648, 8.79901574, 9.819492441, 10.826891316, 11.826466727, 12.835195252, 13.867842842, 14.912794438, 16], False, 3, [1, 1, 1, 1, 1, 1, 1, 1, 1, 1, 1, 1, 1, 1, 1, 1, 1, 1, 1], False),  # 34
    Part.BSplineCurve([App.Vector(-0.382111, 0.04312, 0), App.Vector(-0.38592, 0.043231, 0), App.Vector(-0.39336, 0.043448, 0), App.Vector(-0.404275, 0.044709, 0), App.Vector(-0.414606, 0.047083, 0), App.Vector(-0.424488, 0.050107, 0), App.Vector(-0.433738, 0.054265, 0), App.Vector(-0.442422, 0.059315, 0), App.Vector(-0.450574, 0.065261, 0), App.Vector(-0.458109, 0.072018, 0), App.Vector(-0.464941, 0.079416, 0), App.Vector(-0.470824, 0.08734, 0), App.Vector(-0.475898, 0.0956, 0), App.Vector(-0.480024, 0.104263, 0), App.Vector(-0.483237, 0.113327, 0), App.Vector(-0.485561, 0.122749, 0), App.Vector(-0.486854, 0.132594, 0), App.Vector(-0.48707, 0.13927, 0), App.Vector(-0.487179, 0.142679, 0)], [4, 1, 1, 1, 1, 1, 1, 1, 1, 1, 1, 1, 1, 1, 1, 1, 4], [0, 1.129588631, 2.206414736, 3.251139165, 4.268635594, 5.265702196, 6.250456724, 7.242448911, 8.251968645, 9.246821453, 10.222880186, 11.173611482, 12.116736599, 13.062300278, 14.020270554, 14.989073742, 16], False, 3, [1, 1, 1, 1, 1, 1, 1, 1, 1, 1, 1, 1, 1, 1, 1, 1, 1, 1, 1], False),  # 35
], False)
sketch4.addConstraint([
    Sketcher.Constraint("Block", 1),
    Sketcher.Constraint("Block", 2),
    Sketcher.Constraint("Block", 3),
    Sketcher.Constraint("Block", 9),
    Sketcher.Constraint("Block", 10),
    Sketcher.Constraint("Block", 11),
    Sketcher.Constraint("Block", 13),
    Sketcher.Constraint("Block", 14),
    Sketcher.Constraint("Block", 15),
    Sketcher.Constraint("Block", 21),
    Sketcher.Constraint("Block", 22),
    Sketcher.Constraint("Block", 23),
    Sketcher.Constraint("Block", 26),
    Sketcher.Constraint("Block", 27),
    Sketcher.Constraint("Block", 28),
    Sketcher.Constraint("Block", 29),
    Sketcher.Constraint("Block", 30),
    Sketcher.Constraint("Block", 32),
    Sketcher.Constraint("Block", 33),
    Sketcher.Constraint("Block", 34),
    Sketcher.Constraint("Block", 35),
    Sketcher.Constraint("Coincident", 0, 2, 1, 2),
    Sketcher.Constraint("Coincident", 3, 1, 4, 1),
    Sketcher.Constraint("Coincident", 4, 2, 5, 1),
    Sketcher.Constraint("Coincident", 5, 2, 6, 1),
    Sketcher.Constraint("Coincident", 6, 2, 7, 1),
    Sketcher.Constraint("Coincident", 7, 2, 8, 1),
    Sketcher.Constraint("Coincident", 8, 2, 9, 2),
    Sketcher.Constraint("Coincident", 11, 1, 0, 1),
    Sketcher.Constraint("Coincident", 12, 2, 13, 2),
    Sketcher.Constraint("Coincident", 15, 1, 16, 1),
    Sketcher.Constraint("Coincident", 16, 2, 17, 1),
    Sketcher.Constraint("Coincident", 17, 2, 18, 1),
    Sketcher.Constraint("Coincident", 18, 2, 19, 1),
    Sketcher.Constraint("Coincident", 19, 2, 20, 1),
    Sketcher.Constraint("Coincident", 20, 2, 21, 2),
    Sketcher.Constraint("Coincident", 23, 1, 12, 1),
    Sketcher.Constraint("Coincident", 24, 2, 25, 1),
    Sketcher.Constraint("Coincident", 25, 2, 26, 2),
    Sketcher.Constraint("Coincident", 30, 1, 31, 1),
    Sketcher.Constraint("Coincident", 31, 2, 24, 1),
    Sketcher.Constraint("Horizontal", 5),
    Sketcher.Constraint("Vertical", 6),
    Sketcher.Constraint("Horizontal", 7),
    Sketcher.Constraint("Horizontal", 17),
    Sketcher.Constraint("Vertical", 18),
    Sketcher.Constraint("Horizontal", 19),
    Sketcher.Constraint("DistanceY", -1, 1, 4, 2, Q("0.2803 mm")),
    Sketcher.Constraint("DistanceY", -1, 1, 16, 2, Q("0.2803 mm")),
    Sketcher.Constraint("DistanceX", 7, 2, 8, 2, Q("0.1251 mm")),
    Sketcher.Constraint("DistanceX", 19, 2, 20, 2, Q("0.1251 mm")),
    Sketcher.Constraint("Distance", 24, Q("0.043941 mm")),
    Sketcher.Constraint("Distance", 25, Q("0.272638 mm")),
    Sketcher.Constraint("DistanceX", 5, 1, 5, 2, Q("0.339744 mm")),
    Sketcher.Constraint("DistanceX", 7, 2, 7, 1, Q("0.232672 mm")),
    Sketcher.Constraint("DistanceX", 17, 1, 17, 2, Q("0.339744 mm")),
    Sketcher.Constraint("DistanceX", 19, 2, 19, 1, Q("0.232672 mm")),
    Sketcher.Constraint("DistanceY", 6, 2, 6, 1, Q("0.051282 mm")),
    Sketcher.Constraint("DistanceY", 18, 2, 18, 1, Q("0.051282 mm")),
    Sketcher.Constraint("DistanceY", 24, 2, -1, 1, Q("0.232521 mm")),
    Sketcher.Constraint("DistanceY", 31, 2, 25, 2, Q("0.201022 mm")),
])
pad3 = doc.addObject("PartDesign::Pad", "Pad002")
body.addObject(pad3)
pad3.Profile = sketch4
pad3.Length = 0.04
pad3.Reversed = True

doc.recompute()
